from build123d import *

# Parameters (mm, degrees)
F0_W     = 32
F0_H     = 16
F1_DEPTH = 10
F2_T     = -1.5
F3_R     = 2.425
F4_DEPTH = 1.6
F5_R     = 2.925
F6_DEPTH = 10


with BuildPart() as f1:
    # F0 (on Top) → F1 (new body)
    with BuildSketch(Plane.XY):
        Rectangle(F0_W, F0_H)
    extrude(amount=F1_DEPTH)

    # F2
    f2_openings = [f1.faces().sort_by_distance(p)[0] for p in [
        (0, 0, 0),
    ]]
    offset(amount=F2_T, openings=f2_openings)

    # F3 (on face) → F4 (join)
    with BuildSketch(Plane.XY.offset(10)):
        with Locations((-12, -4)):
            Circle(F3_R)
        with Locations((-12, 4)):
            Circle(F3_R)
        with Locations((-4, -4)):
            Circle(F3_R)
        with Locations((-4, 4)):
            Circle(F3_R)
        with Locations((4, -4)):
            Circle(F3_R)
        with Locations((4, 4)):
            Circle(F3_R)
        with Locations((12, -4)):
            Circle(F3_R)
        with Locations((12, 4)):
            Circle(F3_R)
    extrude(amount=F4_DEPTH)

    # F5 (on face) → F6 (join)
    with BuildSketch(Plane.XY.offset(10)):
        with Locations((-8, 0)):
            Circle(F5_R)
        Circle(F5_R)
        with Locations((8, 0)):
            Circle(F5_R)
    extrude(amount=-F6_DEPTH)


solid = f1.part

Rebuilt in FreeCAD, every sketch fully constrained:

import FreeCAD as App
import Part
import Sketcher
Q = App.Units.Quantity


def faces_at(feature, points):
    """Names of the faces that lie closest to the given points."""
    faces = feature.Shape.Faces
    near = lambda p: min(range(len(faces)), key=lambda i: faces[i].distToShape(Part.Vertex(*p))[0])
    return sorted({f"Face{near(p) + 1}" for p in points})


def add_polygon(sketch, points):
    """Adds a closed chain of lines whose ends are joined by coincident constraints."""
    first, n = sketch.GeometryCount, len(points)
    for a, b in zip(points, points[1:] + points[:1]):
        sketch.addGeometry(Part.LineSegment(App.Vector(*a, 0), App.Vector(*b, 0)), False)
    for i in range(n):
        sketch.addConstraint(Sketcher.Constraint("Coincident", first + i, 2, first + (i + 1) % n, 1))

doc = App.newDocument("Part")
params = doc.addObject("Spreadsheet::Sheet", "Params")
for row, (alias, value) in enumerate([
    ("sketch1_width", "32 mm"),
    ("sketch1_height", "16 mm"),
    ("pad1_length", "10 mm"),
    ("thickness_wall", "1.5 mm"),
    ("sketch2_diameter", "4.85 mm"),
    ("pad2_length", "1.6 mm"),
    ("sketch3_diameter", "5.85 mm"),
    ("pad3_length", "10 mm"),
], start=1):
    params.set(f"A{row}", alias)
    params.set(f"B{row}", "=" + value)
    params.setAlias(f"B{row}", alias)

body = doc.addObject("PartDesign::Body", "Body")

sketch1 = doc.addObject("Sketcher::SketchObject", "Sketch")
body.addObject(sketch1)
sketch1.AttachmentSupport = (doc.XY_Plane, [""])
sketch1.MapMode = "FlatFace"
add_polygon(sketch1, [(-16, 8), (-16, -8), (16, -8), (16, 8)])
sketch1.addConstraint(Sketcher.Constraint("Vertical", 0))
sketch1.addConstraint(Sketcher.Constraint("Horizontal", 1))
sketch1.addConstraint(Sketcher.Constraint("Vertical", 2))
sketch1.addConstraint(Sketcher.Constraint("Horizontal", 3))
sketch1.addConstraint(Sketcher.Constraint("Symmetric", 0, 2, 2, 2, -1, 1))
sketch1.addConstraint(Sketcher.Constraint("DistanceX", 1, 1, 1, 2, Q("32 mm")))
sketch1.addConstraint(Sketcher.Constraint("DistanceY", 0, 2, 0, 1, Q("16 mm")))
sketch1.setExpression("Constraints[9]", "Params.sketch1_width")
sketch1.setExpression("Constraints[10]", "Params.sketch1_height")
pad1 = doc.addObject("PartDesign::Pad", "Pad")
body.addObject(pad1)
pad1.Profile = sketch1
pad1.setExpression("Length", "Params.pad1_length")
doc.recompute()

thickness = doc.addObject("PartDesign::Thickness", "Thickness")
body.addObject(thickness)
thickness.Base = (pad1, faces_at(pad1, [(0, 0, 0)]))
thickness.setExpression("Value", "Params.thickness_wall")
thickness.Reversed = True
thickness.Join = "Arc"

sketch2 = doc.addObject("Sketcher::SketchObject", "Sketch001")
body.addObject(sketch2)
sketch2.AttachmentSupport = (doc.XY_Plane, [""])
sketch2.MapMode = "FlatFace"
sketch2.AttachmentOffset = App.Placement(App.Vector(0, 0, 10), App.Rotation())
sketch2.addGeometry(Part.Circle(App.Vector(-12, -4, 0), App.Vector(0, 0, 1), 2.4), False)
sketch2.addGeometry(Part.Circle(App.Vector(-12, 4, 0), App.Vector(0, 0, 1), 2.4), False)
sketch2.addGeometry(Part.Circle(App.Vector(-4, -4, 0), App.Vector(0, 0, 1), 2.4), False)
sketch2.addGeometry(Part.Circle(App.Vector(-4, 4, 0), App.Vector(0, 0, 1), 2.4), False)
sketch2.addGeometry(Part.Circle(App.Vector(4, -4, 0), App.Vector(0, 0, 1), 2.4), False)
sketch2.addGeometry(Part.Circle(App.Vector(4, 4, 0), App.Vector(0, 0, 1), 2.4), False)
sketch2.addGeometry(Part.Circle(App.Vector(12, -4, 0), App.Vector(0, 0, 1), 2.4), False)
sketch2.addGeometry(Part.Circle(App.Vector(12, 4, 0), App.Vector(0, 0, 1), 2.4), False)
sketch2.addConstraint(Sketcher.Constraint("Equal", 0, 1))
sketch2.addConstraint(Sketcher.Constraint("Equal", 1, 2))
sketch2.addConstraint(Sketcher.Constraint("Equal", 2, 3))
sketch2.addConstraint(Sketcher.Constraint("Equal", 3, 4))
sketch2.addConstraint(Sketcher.Constraint("Equal", 4, 5))
sketch2.addConstraint(Sketcher.Constraint("Equal", 5, 6))
sketch2.addConstraint(Sketcher.Constraint("Equal", 6, 7))
sketch2.addConstraint(Sketcher.Constraint("Symmetric", 3, 3, 4, 3, -1, 1))
sketch2.addConstraint(Sketcher.Constraint("Symmetric", 2, 3, 5, 3, -1, 1))
sketch2.addConstraint(Sketcher.Constraint("Symmetric", 1, 3, 6, 3, -1, 1))
sketch2.addConstraint(Sketcher.Constraint("Symmetric", 0, 3, 7, 3, -1, 1))
sketch2.addConstraint(Sketcher.Constraint("Symmetric", 2, 3, 4, 3, -2))
sketch2.addConstraint(Sketcher.Constraint("Symmetric", 0, 3, 6, 3, -2))
sketch2.addConstraint(Sketcher.Constraint("Horizontal", 0, 3, 2, 3))
sketch2.addConstraint(Sketcher.Constraint("Diameter", 0, Q("4.85 mm")))
sketch2.addConstraint(Sketcher.Constraint("DistanceX", 0, 3, -1, 1, Q("12 mm")))
sketch2.addConstraint(Sketcher.Constraint("DistanceY", 0, 3, -1, 1, Q("4 mm")))
sketch2.addConstraint(Sketcher.Constraint("DistanceX", 2, 3, -1, 1, Q("4 mm")))
sketch2.setExpression("Constraints[14]", "Params.sketch2_diameter")
pad2 = doc.addObject("PartDesign::Pad", "Pad001")
body.addObject(pad2)
pad2.Profile = sketch2
pad2.setExpression("Length", "Params.pad2_length")

sketch3 = doc.addObject("Sketcher::SketchObject", "Sketch002")
body.addObject(sketch3)
sketch3.AttachmentSupport = (doc.XY_Plane, [""])
sketch3.MapMode = "FlatFace"
sketch3.AttachmentOffset = App.Placement(App.Vector(0, 0, 10), App.Rotation())
sketch3.addGeometry(Part.Circle(App.Vector(-8, 0, 0), App.Vector(0, 0, 1), 2.9), False)
sketch3.addGeometry(Part.Circle(App.Vector(0, 0, 0), App.Vector(0, 0, 1), 2.9), False)
sketch3.addGeometry(Part.Circle(App.Vector(8, 0, 0), App.Vector(0, 0, 1), 2.9), False)
sketch3.addConstraint(Sketcher.Constraint("Coincident", 1, 3, -1, 1))
sketch3.addConstraint(Sketcher.Constraint("Equal", 0, 1))
sketch3.addConstraint(Sketcher.Constraint("Equal", 1, 2))
sketch3.addConstraint(Sketcher.Constraint("Symmetric", 0, 3, 2, 3, -1, 1))
sketch3.addConstraint(Sketcher.Constraint("PointOnObject", 0, 3, -1))
sketch3.addConstraint(Sketcher.Constraint("Diameter", 0, Q("5.85 mm")))
sketch3.addConstraint(Sketcher.Constraint("DistanceX", 0, 3, -1, 1, Q("8 mm")))
sketch3.setExpression("Constraints[5]", "Params.sketch3_diameter")
pad3 = doc.addObject("PartDesign::Pad", "Pad002")
body.addObject(pad3)
pad3.Profile = sketch3
pad3.setExpression("Length", "Params.pad3_length")
pad3.Reversed = True

doc.recompute()
